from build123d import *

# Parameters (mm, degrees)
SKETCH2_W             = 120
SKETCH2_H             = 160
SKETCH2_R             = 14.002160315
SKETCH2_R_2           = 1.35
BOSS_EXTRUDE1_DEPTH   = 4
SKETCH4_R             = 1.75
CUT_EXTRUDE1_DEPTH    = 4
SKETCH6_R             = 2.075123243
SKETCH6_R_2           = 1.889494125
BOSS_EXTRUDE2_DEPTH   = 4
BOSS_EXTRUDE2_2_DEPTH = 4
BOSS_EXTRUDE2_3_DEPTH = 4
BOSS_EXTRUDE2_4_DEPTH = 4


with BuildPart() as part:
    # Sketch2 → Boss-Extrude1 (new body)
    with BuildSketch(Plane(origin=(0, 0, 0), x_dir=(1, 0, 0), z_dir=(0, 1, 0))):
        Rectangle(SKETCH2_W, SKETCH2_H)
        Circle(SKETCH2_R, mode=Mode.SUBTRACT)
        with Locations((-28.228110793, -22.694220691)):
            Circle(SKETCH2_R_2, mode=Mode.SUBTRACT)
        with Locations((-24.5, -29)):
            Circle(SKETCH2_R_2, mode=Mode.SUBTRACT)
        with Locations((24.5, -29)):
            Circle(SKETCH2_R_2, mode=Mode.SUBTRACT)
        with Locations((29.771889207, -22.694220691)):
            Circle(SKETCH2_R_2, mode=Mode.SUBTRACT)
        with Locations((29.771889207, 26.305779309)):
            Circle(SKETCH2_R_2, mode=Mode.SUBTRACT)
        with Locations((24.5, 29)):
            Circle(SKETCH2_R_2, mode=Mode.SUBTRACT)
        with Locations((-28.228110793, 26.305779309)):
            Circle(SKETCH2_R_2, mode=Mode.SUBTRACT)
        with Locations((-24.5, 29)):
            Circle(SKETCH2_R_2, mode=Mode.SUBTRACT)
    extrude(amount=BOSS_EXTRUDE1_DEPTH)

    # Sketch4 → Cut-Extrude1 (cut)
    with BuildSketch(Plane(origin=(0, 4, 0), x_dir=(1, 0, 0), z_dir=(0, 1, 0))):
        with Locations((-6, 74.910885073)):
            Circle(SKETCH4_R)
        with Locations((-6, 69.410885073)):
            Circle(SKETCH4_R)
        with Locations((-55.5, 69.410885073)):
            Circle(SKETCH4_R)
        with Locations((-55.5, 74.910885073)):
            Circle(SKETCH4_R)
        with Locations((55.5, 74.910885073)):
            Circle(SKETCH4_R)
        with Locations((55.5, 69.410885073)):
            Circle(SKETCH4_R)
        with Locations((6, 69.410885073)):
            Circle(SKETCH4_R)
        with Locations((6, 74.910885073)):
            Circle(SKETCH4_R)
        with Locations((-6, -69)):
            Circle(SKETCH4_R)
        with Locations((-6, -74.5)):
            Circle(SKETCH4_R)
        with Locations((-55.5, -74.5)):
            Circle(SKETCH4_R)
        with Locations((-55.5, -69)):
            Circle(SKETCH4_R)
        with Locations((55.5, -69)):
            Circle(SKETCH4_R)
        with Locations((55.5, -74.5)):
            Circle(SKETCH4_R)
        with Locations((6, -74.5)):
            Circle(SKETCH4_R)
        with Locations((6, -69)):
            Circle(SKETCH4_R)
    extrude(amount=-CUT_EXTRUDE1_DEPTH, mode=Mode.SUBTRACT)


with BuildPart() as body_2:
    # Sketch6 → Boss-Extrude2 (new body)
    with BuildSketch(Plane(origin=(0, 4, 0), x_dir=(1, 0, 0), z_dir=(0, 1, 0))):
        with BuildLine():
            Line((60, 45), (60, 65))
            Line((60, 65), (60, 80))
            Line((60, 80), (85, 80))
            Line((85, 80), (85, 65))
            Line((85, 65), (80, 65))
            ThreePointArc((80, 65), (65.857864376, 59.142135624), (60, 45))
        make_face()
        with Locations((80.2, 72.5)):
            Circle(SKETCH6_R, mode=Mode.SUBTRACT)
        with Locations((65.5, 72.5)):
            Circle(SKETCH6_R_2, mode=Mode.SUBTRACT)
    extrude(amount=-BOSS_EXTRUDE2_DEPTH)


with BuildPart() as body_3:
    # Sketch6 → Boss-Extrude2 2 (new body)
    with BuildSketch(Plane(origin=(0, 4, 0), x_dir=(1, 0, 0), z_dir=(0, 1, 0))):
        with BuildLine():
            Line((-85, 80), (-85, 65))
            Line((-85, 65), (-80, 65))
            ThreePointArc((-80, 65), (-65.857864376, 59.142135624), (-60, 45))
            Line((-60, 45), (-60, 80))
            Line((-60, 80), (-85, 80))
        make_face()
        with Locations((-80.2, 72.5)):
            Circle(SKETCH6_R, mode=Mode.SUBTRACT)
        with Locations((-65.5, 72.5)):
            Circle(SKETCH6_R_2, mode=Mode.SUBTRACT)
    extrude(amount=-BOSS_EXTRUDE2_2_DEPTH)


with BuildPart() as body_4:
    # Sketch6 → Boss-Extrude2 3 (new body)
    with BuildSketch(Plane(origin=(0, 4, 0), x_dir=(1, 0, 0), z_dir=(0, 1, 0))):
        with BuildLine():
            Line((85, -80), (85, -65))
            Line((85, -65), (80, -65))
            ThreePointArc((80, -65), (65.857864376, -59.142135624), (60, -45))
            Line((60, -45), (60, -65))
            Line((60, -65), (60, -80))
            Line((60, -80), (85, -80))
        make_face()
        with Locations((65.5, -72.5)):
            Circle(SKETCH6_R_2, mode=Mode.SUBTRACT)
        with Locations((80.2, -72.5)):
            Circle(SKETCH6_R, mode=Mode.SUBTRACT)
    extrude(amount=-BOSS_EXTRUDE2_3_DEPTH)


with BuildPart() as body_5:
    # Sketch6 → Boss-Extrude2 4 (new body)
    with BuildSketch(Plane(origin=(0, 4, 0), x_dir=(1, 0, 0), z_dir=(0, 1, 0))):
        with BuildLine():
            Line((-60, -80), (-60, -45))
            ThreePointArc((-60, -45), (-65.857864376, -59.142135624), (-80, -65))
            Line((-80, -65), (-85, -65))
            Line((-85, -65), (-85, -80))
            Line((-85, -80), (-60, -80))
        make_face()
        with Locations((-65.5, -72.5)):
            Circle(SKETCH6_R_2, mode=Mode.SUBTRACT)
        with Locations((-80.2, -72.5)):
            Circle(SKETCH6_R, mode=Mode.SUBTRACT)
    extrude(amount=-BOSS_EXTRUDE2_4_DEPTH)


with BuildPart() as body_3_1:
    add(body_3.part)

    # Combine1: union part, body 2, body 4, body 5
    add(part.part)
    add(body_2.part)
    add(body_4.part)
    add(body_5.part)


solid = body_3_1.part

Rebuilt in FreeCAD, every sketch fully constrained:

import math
import FreeCAD as App
import Part
import Sketcher
from FreeCAD import Vector


def add_polygon(sketch, points):
    """Adds a closed chain of lines whose ends are joined by coincident constraints."""
    first, n = sketch.GeometryCount, len(points)
    for a, b in zip(points, points[1:] + points[:1]):
        sketch.addGeometry(Part.LineSegment(App.Vector(*a, 0), App.Vector(*b, 0)), False)
    for i in range(n):
        sketch.addConstraint(Sketcher.Constraint("Coincident", first + i, 2, first + (i + 1) % n, 1))

doc = App.newDocument("Part")
body = doc.addObject("PartDesign::Body", "Body")

# Sketch on XZ plane
sketch1 = doc.addObject("Sketcher::SketchObject", "Sketch")
body.addObject(sketch1)
sketch1.AttachmentSupport = (doc.XZ_Plane, [""])
sketch1.MapMode = "FlatFace"
add_polygon(sketch1, [(-60, -80), (-60, 80), (60, 80), (60, -80)])  # lines 0-3
sketch1.addGeometry(Part.Circle(Vector(-24.5, 29, 0), Vector(0, 0, 1), 1.35), False)  # 4
sketch1.addGeometry(Part.Circle(Vector(-28.228111, 22.694221, 0), Vector(0, 0, 1), 1.35), False)  # 5
sketch1.addGeometry(Part.Circle(Vector(24.5, 29, 0), Vector(0, 0, 1), 1.35), False)  # 6
sketch1.addGeometry(Part.Circle(Vector(29.771889, 22.694221, 0), Vector(0, 0, 1), 1.35), False)  # 7
sketch1.addGeometry(Part.Circle(Vector(0, 0, 0), Vector(0, 0, 1), 14.00216), False)  # 8
sketch1.addGeometry(Part.Circle(Vector(-28.228111, -26.305779, 0), Vector(0, 0, 1), 1.35), False)  # 9
sketch1.addGeometry(Part.Circle(Vector(-24.5, -29, 0), Vector(0, 0, 1), 1.35), False)  # 10
sketch1.addGeometry(Part.Circle(Vector(29.771889, -26.305779, 0), Vector(0, 0, 1), 1.35), False)  # 11
sketch1.addGeometry(Part.Circle(Vector(24.5, -29, 0), Vector(0, 0, 1), 1.35), False)  # 12
sketch1.addConstraint([
    Sketcher.Constraint("Vertical", 0),
    Sketcher.Constraint("Horizontal", 1),
    Sketcher.Constraint("Vertical", 2),
    Sketcher.Constraint("Horizontal", 3),
    Sketcher.Constraint("Coincident", 8, 3, -1, 1),
    Sketcher.Constraint("Equal", 4, 5),
    Sketcher.Constraint("Equal", 5, 6),
    Sketcher.Constraint("Equal", 6, 7),
    Sketcher.Constraint("Equal", 7, 9),
    Sketcher.Constraint("Equal", 9, 10),
    Sketcher.Constraint("Equal", 10, 11),
    Sketcher.Constraint("Equal", 11, 12),
    Sketcher.Constraint("Symmetric", 6, 3, 10, 3, -1, 1),
    Sketcher.Constraint("Symmetric", 4, 3, 12, 3, -1, 1),
    Sketcher.Constraint("Symmetric", 0, 2, 2, 2, -1, 1),
    Sketcher.Constraint("Symmetric", 4, 3, 6, 3, -2),
    Sketcher.Constraint("Horizontal", 5, 3, 7, 3),
    Sketcher.Constraint("Horizontal", 9, 3, 11, 3),
    Sketcher.Constraint("Vertical", 5, 3, 9, 3),
    Sketcher.Constraint("Vertical", 7, 3, 11, 3),
    Sketcher.Constraint("Diameter", 4, 2.7),
    Sketcher.Constraint("DistanceX", 1, 1, 1, 2, 120.0),
    Sketcher.Constraint("DistanceY", 0, 1, 0, 2, 160.0),
    Sketcher.Constraint("DistanceY", -1, 1, 4, 3, 29.0),
    Sketcher.Constraint("DistanceX", 4, 3, 6, 3, 49.0),
    Sketcher.Constraint("DistanceX", 5, 3, 7, 3, 58.0),
    Sketcher.Constraint("DistanceY", 9, 3, 5, 3, 49.0),
    Sketcher.Constraint("Diameter", 8, 28.004321),
    Sketcher.Constraint("DistanceX", 5, 3, -1, 1, 28.228111),
    Sketcher.Constraint("DistanceY", -1, 1, 5, 3, 22.694221),
])
pad1 = doc.addObject("PartDesign::Pad", "Pad")
body.addObject(pad1)
pad1.Profile = sketch1
pad1.Length = 4
pad1.Reversed = True

# Sketch on XZ plane
sketch2 = doc.addObject("Sketcher::SketchObject", "Sketch001")
body.addObject(sketch2)
sketch2.AttachmentSupport = (doc.XZ_Plane, [""])
sketch2.MapMode = "FlatFace"
sketch2.AttachmentOffset = App.Placement(Vector(0, 0, -4), App.Rotation())
sketch2.addGeometry([
    Part.Circle(Vector(-6, -74.910885, 0), Vector(0, 0, 1), 1.75),  # 0
    Part.Circle(Vector(-6, -69.410885, 0), Vector(0, 0, 1), 1.75),  # 1
    Part.Circle(Vector(-55.5, -69.410885, 0), Vector(0, 0, 1), 1.75),  # 2
    Part.Circle(Vector(-55.5, -74.910885, 0), Vector(0, 0, 1), 1.75),  # 3
    Part.Circle(Vector(55.5, -74.910885, 0), Vector(0, 0, 1), 1.75),  # 4
    Part.Circle(Vector(55.5, -69.410885, 0), Vector(0, 0, 1), 1.75),  # 5
    Part.Circle(Vector(6, -69.410885, 0), Vector(0, 0, 1), 1.75),  # 6
    Part.Circle(Vector(6, -74.910885, 0), Vector(0, 0, 1), 1.75),  # 7
    Part.Circle(Vector(-6, 69, 0), Vector(0, 0, 1), 1.75),  # 8
    Part.Circle(Vector(-6, 74.5, 0), Vector(0, 0, 1), 1.75),  # 9
    Part.Circle(Vector(-55.5, 74.5, 0), Vector(0, 0, 1), 1.75),  # 10
    Part.Circle(Vector(-55.5, 69, 0), Vector(0, 0, 1), 1.75),  # 11
    Part.Circle(Vector(55.5, 69, 0), Vector(0, 0, 1), 1.75),  # 12
    Part.Circle(Vector(55.5, 74.5, 0), Vector(0, 0, 1), 1.75),  # 13
    Part.Circle(Vector(6, 74.5, 0), Vector(0, 0, 1), 1.75),  # 14
    Part.Circle(Vector(6, 69, 0), Vector(0, 0, 1), 1.75),  # 15
], False)
sketch2.addConstraint([
    Sketcher.Constraint("Equal", 0, 1),
    Sketcher.Constraint("Equal", 1, 2),
    Sketcher.Constraint("Equal", 2, 3),
    Sketcher.Constraint("Equal", 3, 4),
    Sketcher.Constraint("Equal", 4, 5),
    Sketcher.Constraint("Equal", 5, 6),
    Sketcher.Constraint("Equal", 6, 7),
    Sketcher.Constraint("Equal", 7, 8),
    Sketcher.Constraint("Equal", 8, 9),
    Sketcher.Constraint("Equal", 9, 10),
    Sketcher.Constraint("Equal", 10, 11),
    Sketcher.Constraint("Equal", 11, 12),
    Sketcher.Constraint("Equal", 12, 13),
    Sketcher.Constraint("Equal", 13, 14),
    Sketcher.Constraint("Equal", 14, 15),
    Sketcher.Constraint("Symmetric", 3, 3, 4, 3, -2),
    Sketcher.Constraint("Symmetric", 2, 3, 5, 3, -2),
    Sketcher.Constraint("Symmetric", 1, 3, 6, 3, -2),
    Sketcher.Constraint("Symmetric", 0, 3, 7, 3, -2),
    Sketcher.Constraint("Symmetric", 11, 3, 12, 3, -2),
    Sketcher.Constraint("Symmetric", 10, 3, 13, 3, -2),
    Sketcher.Constraint("Symmetric", 9, 3, 14, 3, -2),
    Sketcher.Constraint("Symmetric", 8, 3, 15, 3, -2),
    Sketcher.Constraint("Horizontal", 1, 3, 2, 3),
    Sketcher.Constraint("Horizontal", 0, 3, 3, 3),
    Sketcher.Constraint("Horizontal", 9, 3, 10, 3),
    Sketcher.Constraint("Horizontal", 8, 3, 11, 3),
    Sketcher.Constraint("Vertical", 0, 3, 1, 3),
    Sketcher.Constraint("Vertical", 2, 3, 3, 3),
    Sketcher.Constraint("Vertical", 1, 3, 8, 3),
    Sketcher.Constraint("Vertical", 8, 3, 9, 3),
    Sketcher.Constraint("Vertical", 3, 3, 10, 3),
    Sketcher.Constraint("Vertical", 10, 3, 11, 3),
    Sketcher.Constraint("Diameter", 0, 3.5),
    Sketcher.Constraint("DistanceX", 0, 3, -1, 1, 6.0),
    Sketcher.Constraint("DistanceY", -1, 1, 8, 3, 69.0),
    Sketcher.Constraint("DistanceX", 3, 3, 4, 3, 111.0),
    Sketcher.Constraint("DistanceY", -1, 1, 9, 3, 74.5),
    Sketcher.Constraint("DistanceY", 0, 3, 1, 3, 5.5),
    Sketcher.Constraint("DistanceY", 0, 3, -1, 1, 74.910885),
])
pocket1 = doc.addObject("PartDesign::Pocket", "Pocket")
body.addObject(pocket1)
pocket1.Profile = sketch2
pocket1.Length = 4
pocket1.Reversed = True
body2 = doc.addObject("PartDesign::Body", "Body001")

# Sketch on XZ plane
sketch3 = doc.addObject("Sketcher::SketchObject", "Sketch002")
body2.addObject(sketch3)
sketch3.AttachmentSupport = (doc.getObject("XZ_Plane001"), [""])
sketch3.MapMode = "FlatFace"
sketch3.AttachmentOffset = App.Placement(Vector(0, 0, -4), App.Rotation())
sketch3.addGeometry([
    Part.LineSegment(Vector(60, -80, 0), Vector(60, -45, 0)),  # 0
    Part.ArcOfCircle(Part.Circle(Vector(80, -45, 0), Vector(0, 0, 1), 20), math.radians(180), math.radians(270)),  # 1
    Part.LineSegment(Vector(80, -65, 0), Vector(85, -65, 0)),  # 2
    Part.LineSegment(Vector(85, -65, 0), Vector(85, -80, 0)),  # 3
    Part.LineSegment(Vector(85, -80, 0), Vector(60, -80, 0)),  # 4
    Part.Circle(Vector(80.2, -72.5, 0), Vector(0, 0, 1), 2.075123),  # 5
    Part.Circle(Vector(65.5, -72.5, 0), Vector(0, 0, 1), 1.889494),  # 6
], False)
sketch3.addConstraint([
    Sketcher.Constraint("Tangent", 0, 2, 1, 1),
    Sketcher.Constraint("Tangent", 1, 2, 2, 1),
    Sketcher.Constraint("Coincident", 2, 2, 3, 1),
    Sketcher.Constraint("Coincident", 3, 2, 4, 1),
    Sketcher.Constraint("Coincident", 4, 2, 0, 1),
    Sketcher.Constraint("Vertical", 0),
    Sketcher.Constraint("Horizontal", 2),
    Sketcher.Constraint("Vertical", 3),
    Sketcher.Constraint("Horizontal", 4),
    Sketcher.Constraint("Horizontal", 5, 3, 6, 3),
    Sketcher.Constraint("Radius", 1, 20.0),
    Sketcher.Constraint("DistanceX", 2, 1, 2, 2, 5.0),
    Sketcher.Constraint("DistanceY", 0, 1, 0, 2, 35.0),
    Sketcher.Constraint("DistanceX", -1, 1, 1, 3, 80.0),
    Sketcher.Constraint("DistanceY", 1, 3, -1, 1, 45.0),
    Sketcher.Constraint("DistanceX", -1, 1, 5, 3, 80.2),
    Sketcher.Constraint("DistanceY", 5, 3, -1, 1, 72.5),
    Sketcher.Constraint("DistanceX", -1, 1, 6, 3, 65.5),
    Sketcher.Constraint("Diameter", 6, 3.778988),
    Sketcher.Constraint("Diameter", 5, 4.150246),
])
pad2 = doc.addObject("PartDesign::Pad", "Pad001")
body2.addObject(pad2)
pad2.Profile = sketch3
pad2.Length = 4
body3 = doc.addObject("PartDesign::Body", "Body002")

# Sketch on XZ plane
sketch4 = doc.addObject("Sketcher::SketchObject", "Sketch003")
body3.addObject(sketch4)
sketch4.AttachmentSupport = (doc.getObject("XZ_Plane002"), [""])
sketch4.MapMode = "FlatFace"
sketch4.AttachmentOffset = App.Placement(Vector(0, 0, -4), App.Rotation())
sketch4.addGeometry([
    Part.LineSegment(Vector(-85, -80, 0), Vector(-85, -65, 0)),  # 0
    Part.LineSegment(Vector(-85, -65, 0), Vector(-80, -65, 0)),  # 1
    Part.ArcOfCircle(Part.Circle(Vector(-80, -45, 0), Vector(0, 0, 1), 20), math.radians(-90), math.radians(0)),  # 2
    Part.LineSegment(Vector(-60, -45, 0), Vector(-60, -80, 0)),  # 3
    Part.LineSegment(Vector(-60, -80, 0), Vector(-85, -80, 0)),  # 4
    Part.Circle(Vector(-80.2, -72.5, 0), Vector(0, 0, 1), 2.075123),  # 5
    Part.Circle(Vector(-65.5, -72.5, 0), Vector(0, 0, 1), 1.889494),  # 6
], False)
sketch4.addConstraint([
    Sketcher.Constraint("Coincident", 0, 2, 1, 1),
    Sketcher.Constraint("Tangent", 1, 2, 2, 1),
    Sketcher.Constraint("Tangent", 2, 2, 3, 1),
    Sketcher.Constraint("Coincident", 3, 2, 4, 1),
    Sketcher.Constraint("Coincident", 4, 2, 0, 1),
    Sketcher.Constraint("Vertical", 0),
    Sketcher.Constraint("Horizontal", 1),
    Sketcher.Constraint("Vertical", 3),
    Sketcher.Constraint("Horizontal", 4),
    Sketcher.Constraint("Horizontal", 5, 3, 6, 3),
    Sketcher.Constraint("Radius", 2, 20.0),
    Sketcher.Constraint("DistanceX", 1, 1, 1, 2, 5.0),
    Sketcher.Constraint("DistanceY", 0, 1, 0, 2, 15.0),
    Sketcher.Constraint("DistanceX", 2, 3, -1, 1, 80.0),
    Sketcher.Constraint("DistanceY", 2, 3, -1, 1, 45.0),
    Sketcher.Constraint("DistanceX", 5, 3, -1, 1, 80.2),
    Sketcher.Constraint("DistanceY", 5, 3, -1, 1, 72.5),
    Sketcher.Constraint("DistanceX", 6, 3, -1, 1, 65.5),
    Sketcher.Constraint("Diameter", 6, 3.778988),
    Sketcher.Constraint("Diameter", 5, 4.150246),
])
pad3 = doc.addObject("PartDesign::Pad", "Pad002")
body3.addObject(pad3)
pad3.Profile = sketch4
pad3.Length = 4
body4 = doc.addObject("PartDesign::Body", "Body003")

# Sketch on XZ plane
sketch5 = doc.addObject("Sketcher::SketchObject", "Sketch004")
body4.addObject(sketch5)
sketch5.AttachmentSupport = (doc.getObject("XZ_Plane003"), [""])
sketch5.MapMode = "FlatFace"
sketch5.AttachmentOffset = App.Placement(Vector(0, 0, -4), App.Rotation())
sketch5.addGeometry([
    Part.LineSegment(Vector(85, 80, 0), Vector(85, 65, 0)),  # 0
    Part.LineSegment(Vector(85, 65, 0), Vector(80, 65, 0)),  # 1
    Part.ArcOfCircle(Part.Circle(Vector(80, 45, 0), Vector(0, 0, 1), 20), math.radians(90), math.radians(180)),  # 2
    Part.LineSegment(Vector(60, 45, 0), Vector(60, 80, 0)),  # 3
    Part.LineSegment(Vector(60, 80, 0), Vector(85, 80, 0)),  # 4
    Part.Circle(Vector(65.5, 72.5, 0), Vector(0, 0, 1), 1.889494),  # 5
    Part.Circle(Vector(80.2, 72.5, 0), Vector(0, 0, 1), 2.075123),  # 6
], False)
sketch5.addConstraint([
    Sketcher.Constraint("Coincident", 0, 2, 1, 1),
    Sketcher.Constraint("Tangent", 1, 2, 2, 1),
    Sketcher.Constraint("Tangent", 2, 2, 3, 1),
    Sketcher.Constraint("Coincident", 3, 2, 4, 1),
    Sketcher.Constraint("Coincident", 4, 2, 0, 1),
    Sketcher.Constraint("Vertical", 0),
    Sketcher.Constraint("Horizontal", 1),
    Sketcher.Constraint("Vertical", 3),
    Sketcher.Constraint("Horizontal", 4),
    Sketcher.Constraint("Horizontal", 5, 3, 6, 3),
    Sketcher.Constraint("Radius", 2, 20.0),
    Sketcher.Constraint("DistanceX", 1, 2, 1, 1, 5.0),
    Sketcher.Constraint("DistanceY", 0, 2, 0, 1, 15.0),
    Sketcher.Constraint("DistanceX", -1, 1, 2, 3, 80.0),
    Sketcher.Constraint("DistanceY", -1, 1, 2, 3, 45.0),
    Sketcher.Constraint("DistanceX", -1, 1, 5, 3, 65.5),
    Sketcher.Constraint("DistanceY", -1, 1, 5, 3, 72.5),
    Sketcher.Constraint("DistanceX", -1, 1, 6, 3, 80.2),
    Sketcher.Constraint("Diameter", 5, 3.778988),
    Sketcher.Constraint("Diameter", 6, 4.150246),
])
pad4 = doc.addObject("PartDesign::Pad", "Pad003")
body4.addObject(pad4)
pad4.Profile = sketch5
pad4.Length = 4
body5 = doc.addObject("PartDesign::Body", "Body004")

# Sketch on XZ plane
sketch6 = doc.addObject("Sketcher::SketchObject", "Sketch005")
body5.addObject(sketch6)
sketch6.AttachmentSupport = (doc.getObject("XZ_Plane004"), [""])
sketch6.MapMode = "FlatFace"
sketch6.AttachmentOffset = App.Placement(Vector(0, 0, -4), App.Rotation())
sketch6.addGeometry([
    Part.LineSegment(Vector(-60, 80, 0), Vector(-60, 45, 0)),  # 0
    Part.ArcOfCircle(Part.Circle(Vector(-80, 45, 0), Vector(0, 0, 1), 20), math.radians(0), math.radians(90)),  # 1
    Part.LineSegment(Vector(-80, 65, 0), Vector(-85, 65, 0)),  # 2
    Part.LineSegment(Vector(-85, 65, 0), Vector(-85, 80, 0)),  # 3
    Part.LineSegment(Vector(-85, 80, 0), Vector(-60, 80, 0)),  # 4
    Part.Circle(Vector(-80.2, 72.5, 0), Vector(0, 0, 1), 2.075123),  # 5
    Part.Circle(Vector(-65.5, 72.5, 0), Vector(0, 0, 1), 1.889494),  # 6
], False)
sketch6.addConstraint([
    Sketcher.Constraint("Tangent", 0, 2, 1, 1),
    Sketcher.Constraint("Tangent", 1, 2, 2, 1),
    Sketcher.Constraint("Coincident", 2, 2, 3, 1),
    Sketcher.Constraint("Coincident", 3, 2, 4, 1),
    Sketcher.Constraint("Coincident", 4, 2, 0, 1),
    Sketcher.Constraint("Vertical", 0),
    Sketcher.Constraint("Horizontal", 2),
    Sketcher.Constraint("Vertical", 3),
    Sketcher.Constraint("Horizontal", 4),
    Sketcher.Constraint("Horizontal", 5, 3, 6, 3),
    Sketcher.Constraint("Radius", 1, 20.0),
    Sketcher.Constraint("DistanceX", 2, 2, 2, 1, 5.0),
    Sketcher.Constraint("DistanceY", 0, 2, 0, 1, 35.0),
    Sketcher.Constraint("DistanceX", 1, 3, -1, 1, 80.0),
    Sketcher.Constraint("DistanceY", -1, 1, 1, 3, 45.0),
    Sketcher.Constraint("DistanceX", 5, 3, -1, 1, 80.2),
    Sketcher.Constraint("DistanceY", -1, 1, 5, 3, 72.5),
    Sketcher.Constraint("DistanceX", 6, 3, -1, 1, 65.5),
    Sketcher.Constraint("Diameter", 6, 3.778988),
    Sketcher.Constraint("Diameter", 5, 4.150246),
])
pad5 = doc.addObject("PartDesign::Pad", "Pad004")
body5.addObject(pad5)
pad5.Profile = sketch6
pad5.Length = 4
doc.recompute()

boolean = doc.addObject("PartDesign::Boolean", "Boolean")
body3.addObject(boolean)
boolean.Type = "Fuse"
boolean.addObjects([body])
doc.recompute()

boolean2 = doc.addObject("PartDesign::Boolean", "Boolean001")
body3.addObject(boolean2)
boolean2.Type = "Fuse"
boolean2.addObjects([body2])
doc.recompute()

boolean3 = doc.addObject("PartDesign::Boolean", "Boolean002")
body3.addObject(boolean3)
boolean3.Type = "Fuse"
boolean3.addObjects([body4])
doc.recompute()

boolean4 = doc.addObject("PartDesign::Boolean", "Boolean003")
body3.addObject(boolean4)
boolean4.Type = "Fuse"
boolean4.addObjects([body5])

doc.recompute()
